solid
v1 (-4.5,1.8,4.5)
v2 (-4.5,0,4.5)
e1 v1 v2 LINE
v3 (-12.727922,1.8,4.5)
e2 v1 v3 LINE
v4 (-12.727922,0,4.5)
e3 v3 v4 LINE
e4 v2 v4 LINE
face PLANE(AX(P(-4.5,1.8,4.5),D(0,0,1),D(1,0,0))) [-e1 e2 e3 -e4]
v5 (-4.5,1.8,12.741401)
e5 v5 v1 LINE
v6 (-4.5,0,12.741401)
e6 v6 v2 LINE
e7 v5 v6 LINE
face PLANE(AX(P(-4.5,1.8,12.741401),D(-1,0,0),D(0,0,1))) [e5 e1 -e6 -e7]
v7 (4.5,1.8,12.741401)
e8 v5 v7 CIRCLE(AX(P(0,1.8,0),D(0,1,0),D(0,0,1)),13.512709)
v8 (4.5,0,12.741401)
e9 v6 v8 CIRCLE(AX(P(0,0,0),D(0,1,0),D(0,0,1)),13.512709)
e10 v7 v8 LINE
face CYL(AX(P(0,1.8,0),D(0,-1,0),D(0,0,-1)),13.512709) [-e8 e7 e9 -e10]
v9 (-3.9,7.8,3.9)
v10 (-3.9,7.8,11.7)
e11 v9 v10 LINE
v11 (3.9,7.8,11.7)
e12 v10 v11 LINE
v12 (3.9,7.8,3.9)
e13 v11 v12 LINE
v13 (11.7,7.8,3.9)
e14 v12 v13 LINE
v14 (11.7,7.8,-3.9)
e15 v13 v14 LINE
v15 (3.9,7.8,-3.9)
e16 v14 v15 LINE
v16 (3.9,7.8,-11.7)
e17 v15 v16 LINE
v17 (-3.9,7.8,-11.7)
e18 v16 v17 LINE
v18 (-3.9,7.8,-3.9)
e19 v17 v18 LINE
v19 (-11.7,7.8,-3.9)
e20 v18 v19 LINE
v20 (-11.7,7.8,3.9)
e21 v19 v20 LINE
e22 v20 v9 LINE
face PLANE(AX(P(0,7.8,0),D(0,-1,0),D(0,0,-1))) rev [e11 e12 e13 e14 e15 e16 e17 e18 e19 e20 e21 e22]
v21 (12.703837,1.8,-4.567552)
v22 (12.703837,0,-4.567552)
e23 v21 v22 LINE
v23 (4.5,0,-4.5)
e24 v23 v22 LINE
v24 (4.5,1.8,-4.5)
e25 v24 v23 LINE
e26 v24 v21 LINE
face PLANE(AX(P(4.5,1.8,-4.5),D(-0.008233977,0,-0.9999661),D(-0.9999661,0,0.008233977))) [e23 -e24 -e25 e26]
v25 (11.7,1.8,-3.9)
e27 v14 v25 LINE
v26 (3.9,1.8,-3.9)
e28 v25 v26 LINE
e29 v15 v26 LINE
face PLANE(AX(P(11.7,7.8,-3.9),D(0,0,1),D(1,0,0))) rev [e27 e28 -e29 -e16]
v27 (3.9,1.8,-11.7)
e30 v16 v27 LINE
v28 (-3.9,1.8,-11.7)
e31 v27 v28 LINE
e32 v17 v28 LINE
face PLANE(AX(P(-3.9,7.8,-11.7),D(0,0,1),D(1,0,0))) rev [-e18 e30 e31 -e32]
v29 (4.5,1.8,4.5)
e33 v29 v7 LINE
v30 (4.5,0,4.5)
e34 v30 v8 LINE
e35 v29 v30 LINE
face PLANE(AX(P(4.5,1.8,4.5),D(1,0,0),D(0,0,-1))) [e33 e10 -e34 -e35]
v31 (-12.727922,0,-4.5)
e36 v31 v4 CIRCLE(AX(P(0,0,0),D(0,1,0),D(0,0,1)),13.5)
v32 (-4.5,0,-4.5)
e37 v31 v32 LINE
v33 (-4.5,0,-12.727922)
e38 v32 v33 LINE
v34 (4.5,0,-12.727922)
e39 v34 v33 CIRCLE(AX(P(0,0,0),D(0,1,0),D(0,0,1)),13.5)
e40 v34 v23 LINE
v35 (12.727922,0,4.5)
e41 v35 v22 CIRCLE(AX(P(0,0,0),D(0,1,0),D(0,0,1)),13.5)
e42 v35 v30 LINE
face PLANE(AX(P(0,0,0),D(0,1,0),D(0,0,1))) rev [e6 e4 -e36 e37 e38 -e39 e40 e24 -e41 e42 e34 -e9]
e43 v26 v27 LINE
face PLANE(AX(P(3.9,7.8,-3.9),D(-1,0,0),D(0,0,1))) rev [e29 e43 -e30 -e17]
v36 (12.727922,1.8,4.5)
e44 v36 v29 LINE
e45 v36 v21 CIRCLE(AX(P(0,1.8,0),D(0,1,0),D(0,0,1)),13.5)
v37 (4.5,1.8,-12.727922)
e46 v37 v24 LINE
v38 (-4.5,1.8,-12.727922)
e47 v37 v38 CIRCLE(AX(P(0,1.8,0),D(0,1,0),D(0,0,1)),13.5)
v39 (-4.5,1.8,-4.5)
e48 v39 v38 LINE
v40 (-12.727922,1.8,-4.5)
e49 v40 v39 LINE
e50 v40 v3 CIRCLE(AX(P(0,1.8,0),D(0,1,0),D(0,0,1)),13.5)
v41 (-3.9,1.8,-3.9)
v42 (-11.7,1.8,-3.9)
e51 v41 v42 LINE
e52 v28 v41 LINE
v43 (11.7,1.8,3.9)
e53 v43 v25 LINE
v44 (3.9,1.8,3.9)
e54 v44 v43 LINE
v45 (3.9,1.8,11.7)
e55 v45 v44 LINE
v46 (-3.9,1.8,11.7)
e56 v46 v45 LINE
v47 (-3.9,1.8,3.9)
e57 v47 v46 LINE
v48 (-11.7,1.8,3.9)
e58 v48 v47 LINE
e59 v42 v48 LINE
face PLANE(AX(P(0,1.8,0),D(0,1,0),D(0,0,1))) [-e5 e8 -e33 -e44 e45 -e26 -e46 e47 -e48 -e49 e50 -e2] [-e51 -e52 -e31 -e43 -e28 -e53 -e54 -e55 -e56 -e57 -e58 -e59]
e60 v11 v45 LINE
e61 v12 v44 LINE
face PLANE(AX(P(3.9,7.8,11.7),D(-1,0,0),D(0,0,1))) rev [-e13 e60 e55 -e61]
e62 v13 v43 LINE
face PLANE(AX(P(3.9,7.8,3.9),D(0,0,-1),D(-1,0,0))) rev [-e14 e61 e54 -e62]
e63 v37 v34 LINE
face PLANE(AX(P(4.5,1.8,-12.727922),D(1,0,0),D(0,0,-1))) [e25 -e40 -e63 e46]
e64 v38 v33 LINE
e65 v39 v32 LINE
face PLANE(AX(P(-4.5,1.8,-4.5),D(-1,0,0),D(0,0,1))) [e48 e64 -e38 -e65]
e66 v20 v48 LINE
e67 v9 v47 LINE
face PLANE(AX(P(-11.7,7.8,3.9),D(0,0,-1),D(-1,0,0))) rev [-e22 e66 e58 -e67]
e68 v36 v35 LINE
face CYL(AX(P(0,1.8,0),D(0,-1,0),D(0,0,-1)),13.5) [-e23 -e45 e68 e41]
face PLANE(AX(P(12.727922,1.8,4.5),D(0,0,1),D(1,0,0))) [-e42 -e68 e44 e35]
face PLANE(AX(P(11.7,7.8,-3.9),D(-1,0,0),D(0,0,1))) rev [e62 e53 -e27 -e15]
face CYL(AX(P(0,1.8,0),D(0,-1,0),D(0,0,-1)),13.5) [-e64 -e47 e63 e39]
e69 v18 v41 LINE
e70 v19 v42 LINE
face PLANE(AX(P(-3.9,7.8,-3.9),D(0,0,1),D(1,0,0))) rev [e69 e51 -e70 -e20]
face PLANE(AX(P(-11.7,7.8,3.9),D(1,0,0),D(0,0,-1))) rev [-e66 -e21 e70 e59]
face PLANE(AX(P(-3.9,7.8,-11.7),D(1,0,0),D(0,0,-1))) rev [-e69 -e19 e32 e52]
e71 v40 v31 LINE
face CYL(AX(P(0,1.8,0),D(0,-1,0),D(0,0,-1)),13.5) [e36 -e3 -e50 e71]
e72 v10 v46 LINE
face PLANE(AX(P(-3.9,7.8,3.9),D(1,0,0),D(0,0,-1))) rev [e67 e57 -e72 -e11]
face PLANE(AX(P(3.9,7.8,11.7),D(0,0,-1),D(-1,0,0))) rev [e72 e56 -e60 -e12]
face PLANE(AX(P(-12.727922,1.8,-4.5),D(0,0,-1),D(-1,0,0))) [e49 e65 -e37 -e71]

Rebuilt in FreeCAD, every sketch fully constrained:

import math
import FreeCAD as App
import Part
import Sketcher

V = App.Vector


def add_polygon(sketch, points):
    """Adds a closed chain of lines whose ends are joined by coincident constraints."""
    first, n = sketch.GeometryCount, len(points)
    for a, b in zip(points, points[1:] + points[:1]):
        sketch.addGeometry(Part.LineSegment(App.Vector(*a, 0), App.Vector(*b, 0)), False)
    for i in range(n):
        sketch.addConstraint(Sketcher.Constraint("Coincident", first + i, 2, first + (i + 1) % n, 1))

doc = App.newDocument("Part")
body = doc.addObject("PartDesign::Body", "Body")

# Sketch on XZ plane
sketch1 = body.newObject("Sketcher::SketchObject", "Sketch")
sketch1.AttachmentSupport = (doc.getObject("XZ_Plane"), [""])
sketch1.MapMode = "FlatFace"
sketch1.addGeometry([
    Part.LineSegment(V(-4, -4, 0), V(-13, -4, 0)),  # 0
    Part.ArcOfCircle(Part.Circle(V(0, 0, 0), V(0, 0, 1), 13), math.radians(161), math.radians(199)),  # 1
    Part.LineSegment(V(-13, 4, 0), V(-4, 4, 0)),  # 2
    Part.LineSegment(V(-4, 4, 0), V(-4, 13, 0)),  # 3
    Part.ArcOfCircle(Part.Circle(V(0, 0, 0), V(0, 0, 1), 14), math.radians(71), math.radians(109)),  # 4
    Part.LineSegment(V(4, 13, 0), V(4, 4, 0)),  # 5
    Part.LineSegment(V(4, 4, 0), V(13, 4, 0)),  # 6
    Part.ArcOfCircle(Part.Circle(V(0, 0, 0), V(0, 0, 1), 14), math.radians(-20), math.radians(19)),  # 7
    Part.LineSegment(V(13, -5, 0), V(4, -4, 0)),  # 8
    Part.LineSegment(V(4, -4, 0), V(4, -13, 0)),  # 9
    Part.ArcOfCircle(Part.Circle(V(0, 0, 0), V(0, 0, 1), 13), math.radians(-109), math.radians(-71)),  # 10
    Part.LineSegment(V(-4, -13, 0), V(-4, -4, 0)),  # 11
], False)
sketch1.addConstraint([
    Sketcher.Constraint("Coincident", 0, 2, 1, 2),
    Sketcher.Constraint("Coincident", 1, 1, 2, 1),
    Sketcher.Constraint("Coincident", 2, 2, 3, 1),
    Sketcher.Constraint("Coincident", 3, 2, 4, 2),
    Sketcher.Constraint("Coincident", 4, 1, 5, 1),
    Sketcher.Constraint("Coincident", 5, 2, 6, 1),
    Sketcher.Constraint("Coincident", 6, 2, 7, 2),
    Sketcher.Constraint("Coincident", 7, 1, 8, 1),
    Sketcher.Constraint("Coincident", 8, 2, 9, 1),
    Sketcher.Constraint("Coincident", 9, 2, 10, 2),
    Sketcher.Constraint("Coincident", 10, 1, 11, 1),
    Sketcher.Constraint("Coincident", 11, 2, 0, 1),
    Sketcher.Constraint("Horizontal", 0),
    Sketcher.Constraint("Horizontal", 2),
    Sketcher.Constraint("Vertical", 3),
    Sketcher.Constraint("Vertical", 5),
    Sketcher.Constraint("Horizontal", 6),
    Sketcher.Constraint("Vertical", 9),
    Sketcher.Constraint("Vertical", 11),
    Sketcher.Constraint("Coincident", 1, 3, -1, 1),
    Sketcher.Constraint("Coincident", 4, 3, -1, 1),
    Sketcher.Constraint("Coincident", 7, 3, -1, 1),
    Sketcher.Constraint("Coincident", 10, 3, -1, 1),
    Sketcher.Constraint("Equal", 1, 7),
    Sketcher.Constraint("Equal", 7, 10),
    Sketcher.Constraint("Symmetric", 2, 2, 8, 2, -1, 1),
    Sketcher.Constraint("Symmetric", 5, 2, 11, 2, -1, 1),
    Sketcher.Constraint("Symmetric", 2, 2, 5, 2, -2),
    Sketcher.Constraint("Equal", 6, 9),
    Sketcher.Constraint("Radius", 1, 13.5),
    Sketcher.Constraint("DistanceY", 0, 2, 1, 1, 9.0),
    Sketcher.Constraint("Radius", 4, 13.512709),
    Sketcher.Constraint("DistanceY", 9, 2, 7, 1, 8.16037),
])
pad1 = body.newObject("PartDesign::Pad", "Pad")
pad1.Profile = sketch1
pad1.Length = 1.8
pad1.Reversed = True

# Sketch on XZ plane
sketch2 = body.newObject("Sketcher::SketchObject", "Sketch001")
sketch2.AttachmentSupport = (doc.getObject("XZ_Plane"), [""])
sketch2.MapMode = "FlatFace"
sketch2.AttachmentOffset = App.Placement(V(0, 0, -1.8), App.Rotation())
add_polygon(sketch2, [(-4, 12), (4, 12), (4, 4), (12, 4), (12, -4), (4, -4), (4, -12), (-4, -12), (-4, -4), (-12, -4), (-12, 4), (-4, 4)])  # lines 0-11
sketch2.addConstraint([
    Sketcher.Constraint("Horizontal", 0),
    Sketcher.Constraint("Vertical", 1),
    Sketcher.Constraint("Horizontal", 2),
    Sketcher.Constraint("Vertical", 3),
    Sketcher.Constraint("Horizontal", 4),
    Sketcher.Constraint("Vertical", 5),
    Sketcher.Constraint("Horizontal", 6),
    Sketcher.Constraint("Vertical", 7),
    Sketcher.Constraint("Horizontal", 8),
    Sketcher.Constraint("Vertical", 9),
    Sketcher.Constraint("Horizontal", 10),
    Sketcher.Constraint("Vertical", 11),
    Sketcher.Constraint("Symmetric", 0, 2, 6, 2, -1, 1),
    Sketcher.Constraint("Symmetric", 2, 2, 8, 2, -1, 1),
    Sketcher.Constraint("Symmetric", 4, 2, 10, 2, -1, 1),
    Sketcher.Constraint("Symmetric", 4, 2, 7, 2, -2),
    Sketcher.Constraint("Equal", 0, 2),
    Sketcher.Constraint("Equal", 10, 1),
    Sketcher.Constraint("Equal", 1, 3),
    Sketcher.Constraint("DistanceX", 0, 1, 0, 2, 7.8),
])
pad2 = body.newObject("PartDesign::Pad", "Pad001")
pad2.Profile = sketch2
pad2.Length = 6
pad2.Reversed = True

doc.recompute()
